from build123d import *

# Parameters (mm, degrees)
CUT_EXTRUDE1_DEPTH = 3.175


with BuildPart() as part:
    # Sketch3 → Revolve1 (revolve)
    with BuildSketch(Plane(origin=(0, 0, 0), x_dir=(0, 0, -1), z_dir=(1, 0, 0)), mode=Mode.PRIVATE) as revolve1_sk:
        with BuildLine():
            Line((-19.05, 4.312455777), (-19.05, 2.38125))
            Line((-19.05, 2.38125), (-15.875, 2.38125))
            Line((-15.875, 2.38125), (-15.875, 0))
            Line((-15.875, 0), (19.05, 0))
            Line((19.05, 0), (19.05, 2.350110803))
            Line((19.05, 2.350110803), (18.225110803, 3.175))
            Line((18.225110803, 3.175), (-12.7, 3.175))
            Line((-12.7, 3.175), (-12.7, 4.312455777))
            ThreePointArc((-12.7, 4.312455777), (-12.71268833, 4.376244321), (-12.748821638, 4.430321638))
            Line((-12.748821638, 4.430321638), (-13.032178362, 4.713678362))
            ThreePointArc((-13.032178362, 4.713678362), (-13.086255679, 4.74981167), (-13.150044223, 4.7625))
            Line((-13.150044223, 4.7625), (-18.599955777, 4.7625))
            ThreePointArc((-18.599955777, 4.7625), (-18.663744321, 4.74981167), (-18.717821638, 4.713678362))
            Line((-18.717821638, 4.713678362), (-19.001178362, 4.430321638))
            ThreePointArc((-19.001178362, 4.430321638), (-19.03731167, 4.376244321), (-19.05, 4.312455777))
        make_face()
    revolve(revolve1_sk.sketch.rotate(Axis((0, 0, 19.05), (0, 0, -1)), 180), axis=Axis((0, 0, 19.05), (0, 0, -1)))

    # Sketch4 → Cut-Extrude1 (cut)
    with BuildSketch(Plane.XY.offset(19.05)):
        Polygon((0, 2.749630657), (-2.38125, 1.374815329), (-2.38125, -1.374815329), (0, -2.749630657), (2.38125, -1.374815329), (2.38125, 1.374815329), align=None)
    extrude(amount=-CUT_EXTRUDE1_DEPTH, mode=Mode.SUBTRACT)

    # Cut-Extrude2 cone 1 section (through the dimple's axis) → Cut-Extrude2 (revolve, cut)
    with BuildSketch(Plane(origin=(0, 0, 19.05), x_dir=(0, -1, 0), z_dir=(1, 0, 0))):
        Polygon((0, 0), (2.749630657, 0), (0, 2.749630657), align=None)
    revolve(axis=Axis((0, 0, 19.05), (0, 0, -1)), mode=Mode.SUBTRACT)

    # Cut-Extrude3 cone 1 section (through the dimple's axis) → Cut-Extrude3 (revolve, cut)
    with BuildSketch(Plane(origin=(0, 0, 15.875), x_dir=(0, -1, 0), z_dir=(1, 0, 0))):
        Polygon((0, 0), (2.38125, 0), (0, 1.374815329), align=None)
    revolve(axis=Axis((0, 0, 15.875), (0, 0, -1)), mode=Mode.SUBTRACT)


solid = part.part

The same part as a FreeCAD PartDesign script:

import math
import FreeCAD as App
import Part
import Sketcher
from FreeCAD import Vector
Q = App.Units.Quantity


def add_polygon(sketch, points):
    """Adds a closed chain of lines whose ends are joined by coincident constraints."""
    first, n = sketch.GeometryCount, len(points)
    for a, b in zip(points, points[1:] + points[:1]):
        sketch.addGeometry(Part.LineSegment(App.Vector(*a, 0), App.Vector(*b, 0)), False)
    for i in range(n):
        sketch.addConstraint(Sketcher.Constraint("Coincident", first + i, 2, first + (i + 1) % n, 1))

doc = App.newDocument("Part")
body = doc.addObject("PartDesign::Body", "Body")

sketch1 = body.newObject("Sketcher::SketchObject", "Sketch")
sketch1.AttachmentSupport = (doc.getObject("YZ_Plane"), [""])
sketch1.MapMode = "FlatFace"
sketch1.addGeometry([
    Part.LineSegment(Vector(4.312456, 19.05, 0), Vector(2.38125, 19.05, 0)),
    Part.LineSegment(Vector(2.38125, 19.05, 0), Vector(2.38125, 15.875, 0)),
    Part.LineSegment(Vector(2.38125, 15.875, 0), Vector(0, 15.875, 0)),
    Part.LineSegment(Vector(0, 15.875, 0), Vector(0, -19.05, 0)),
    Part.LineSegment(Vector(0, -19.05, 0), Vector(2.350111, -19.05, 0)),
    Part.LineSegment(Vector(2.350111, -19.05, 0), Vector(3.175, -18.225111, 0)),
    Part.LineSegment(Vector(3.175, -18.225111, 0), Vector(3.175, 12.7, 0)),
    Part.LineSegment(Vector(3.175, 12.7, 0), Vector(4.312456, 12.7, 0)),
    Part.ArcOfCircle(Part.Circle(Vector(4.312456, 12.866687, 0), Vector(0, 0, 1), 0.166687), math.radians(-90), math.radians(-45)),
    Part.LineSegment(Vector(4.430322, 12.748822, 0), Vector(4.713678, 13.032178, 0)),
    Part.ArcOfCircle(Part.Circle(Vector(4.595813, 13.150044, 0), Vector(0, 0, 1), 0.166687), math.radians(-45), math.radians(0)),
    Part.LineSegment(Vector(4.7625, 13.150044, 0), Vector(4.7625, 18.599956, 0)),
    Part.ArcOfCircle(Part.Circle(Vector(4.595813, 18.599956, 0), Vector(0, 0, 1), 0.166687), math.radians(0), math.radians(45)),
    Part.LineSegment(Vector(4.713678, 18.717822, 0), Vector(4.430322, 19.001178, 0)),
    Part.ArcOfCircle(Part.Circle(Vector(4.312456, 18.883313, 0), Vector(0, 0, 1), 0.166687), math.radians(45), math.radians(90)),
], False)
sketch1.addConstraint([
    Sketcher.Constraint("Coincident", 0, 2, 1, 1),
    Sketcher.Constraint("Coincident", 1, 2, 2, 1),
    Sketcher.Constraint("Coincident", 2, 2, 3, 1),
    Sketcher.Constraint("Coincident", 3, 2, 4, 1),
    Sketcher.Constraint("Coincident", 4, 2, 5, 1),
    Sketcher.Constraint("Coincident", 5, 2, 6, 1),
    Sketcher.Constraint("Coincident", 6, 2, 7, 1),
    Sketcher.Constraint("Tangent", 7, 2, 8, 1),
    Sketcher.Constraint("Tangent", 8, 2, 9, 1),
    Sketcher.Constraint("Tangent", 9, 2, 10, 1),
    Sketcher.Constraint("Tangent", 10, 2, 11, 1),
    Sketcher.Constraint("Tangent", 11, 2, 12, 1),
    Sketcher.Constraint("Tangent", 12, 2, 13, 1),
    Sketcher.Constraint("Tangent", 13, 2, 14, 1),
    Sketcher.Constraint("Tangent", 14, 2, 0, 1),
    Sketcher.Constraint("Horizontal", 0),
    Sketcher.Constraint("Vertical", 1),
    Sketcher.Constraint("Horizontal", 2),
    Sketcher.Constraint("Vertical", 3),
    Sketcher.Constraint("Horizontal", 4),
    Sketcher.Constraint("Vertical", 6),
    Sketcher.Constraint("Horizontal", 7),
    Sketcher.Constraint("Vertical", 11),
    Sketcher.Constraint("Equal", 8, 10),
    Sketcher.Constraint("Equal", 10, 12),
    Sketcher.Constraint("Equal", 12, 14),
    Sketcher.Constraint("PointOnObject", 2, 2, -2),
    Sketcher.Constraint("Parallel", 5, 9),
    Sketcher.Constraint("Perpendicular", 9, 13),
    Sketcher.Constraint("Vertical", 8, 3, 14, 3),
    Sketcher.Constraint("Vertical", 9, 2, 12, 2),
    Sketcher.Constraint("DistanceY", -1, 1, 6, 2, Q("0.5 in")),
    Sketcher.Constraint("DistanceX", 2, 2, 2, 1, Q("0.09375 in")),
    Sketcher.Constraint("DistanceY", 1, 2, 1, 1, Q("0.125 in")),
    Sketcher.Constraint("DistanceY", 3, 2, 3, 1, Q("1.375 in")),
    Sketcher.Constraint("DistanceY", -1, 1, 0, 2, Q("0.75 in")),
    Sketcher.Constraint("DistanceX", -1, 1, 5, 2, Q("0.125 in")),
    Sketcher.Constraint("DistanceX", -1, 1, 10, 2, Q("0.1875 in")),
    Sketcher.Constraint("Radius", 8, 0.166687),
    Sketcher.Constraint("DistanceX", 4, 1, 4, 2, 2.350111),
    Sketcher.Constraint("DistanceY", 11, 1, 11, 2, 5.449912),
])
revolution = body.newObject("PartDesign::Revolution", "Revolution")
revolution.Profile = sketch1
revolution.ReferenceAxis = (sketch1, ["V_Axis"])
revolution.Angle = 360

sketch2 = body.newObject("Sketcher::SketchObject", "Sketch001")
sketch2.AttachmentSupport = (doc.getObject("XY_Plane"), [""])
sketch2.MapMode = "FlatFace"
sketch2.AttachmentOffset = App.Placement(Vector(0, 0, 0.75 * 25.4), App.Rotation())
add_polygon(sketch2, [(0, 2.749631), (-2.38125, 1.374815), (-2.38125, -1.374815), (0, -2.749631), (2.38125, -1.374815), (2.38125, 1.374815)])
sketch2.addConstraint([
    Sketcher.Constraint("Vertical", 1),
    Sketcher.Constraint("Vertical", 4),
    Sketcher.Constraint("Symmetric", 0, 2, 3, 2, -1, 1),
    Sketcher.Constraint("Symmetric", 2, 2, 5, 2, -1, 1),
    Sketcher.Constraint("PointOnObject", 2, 2, -2),
    Sketcher.Constraint("Parallel", 2, 5),
    Sketcher.Constraint("Horizontal", 1, 2, 3, 2),
    Sketcher.Constraint("Angle", 0, Q("-150 deg")),
    Sketcher.Constraint("DistanceX", 0, 2, -1, 1, Q("0.09375 in")),
    Sketcher.Constraint("DistanceY", 1, 2, 1, 1, 2.749631),
])
pocket1 = body.newObject("PartDesign::Pocket", "Pocket")
pocket1.Profile = sketch2
pocket1.Length = Q("0.125 in")

sketch3 = body.newObject("Sketcher::SketchObject", "Sketch002")
sketch3.AttachmentSupport = (doc.getObject("YZ_Plane"), [""])
sketch3.MapMode = "FlatFace"
add_polygon(sketch3, [(0, 19.05), (-2.749631, 19.05), (0, 16.300369)])
sketch3.addConstraint([
    Sketcher.Constraint("Horizontal", 0),
    Sketcher.Constraint("Vertical", 2),
    Sketcher.Constraint("PointOnObject", 1, 2, -2),
    Sketcher.Constraint("Equal", 0, 2),
    Sketcher.Constraint("DistanceY", -1, 1, 0, 2, Q("0.75 in")),
    Sketcher.Constraint("DistanceX", 0, 2, 0, 1, 2.749631),
])
groove = body.newObject("PartDesign::Groove", "Groove")
groove.Profile = sketch3
groove.ReferenceAxis = (sketch3, ["V_Axis"])
groove.Angle = 360

sketch4 = body.newObject("Sketcher::SketchObject", "Sketch003")
sketch4.AttachmentSupport = (doc.getObject("YZ_Plane"), [""])
sketch4.MapMode = "FlatFace"
add_polygon(sketch4, [(0, 15.875), (-2.38125, 15.875), (0, 14.500185)])
sketch4.addConstraint([
    Sketcher.Constraint("Horizontal", 0),
    Sketcher.Constraint("Vertical", 2),
    Sketcher.Constraint("PointOnObject", 1, 2, -2),
    Sketcher.Constraint("Angle", 1, Q("-30 deg")),
    Sketcher.Constraint("DistanceX", 0, 2, 0, 1, Q("0.09375 in")),
    Sketcher.Constraint("DistanceY", -1, 1, 0, 2, Q("0.625 in")),
])
groove2 = body.newObject("PartDesign::Groove", "Groove001")
groove2.Profile = sketch4
groove2.ReferenceAxis = (sketch4, ["V_Axis"])
groove2.Angle = 360

doc.recompute()
